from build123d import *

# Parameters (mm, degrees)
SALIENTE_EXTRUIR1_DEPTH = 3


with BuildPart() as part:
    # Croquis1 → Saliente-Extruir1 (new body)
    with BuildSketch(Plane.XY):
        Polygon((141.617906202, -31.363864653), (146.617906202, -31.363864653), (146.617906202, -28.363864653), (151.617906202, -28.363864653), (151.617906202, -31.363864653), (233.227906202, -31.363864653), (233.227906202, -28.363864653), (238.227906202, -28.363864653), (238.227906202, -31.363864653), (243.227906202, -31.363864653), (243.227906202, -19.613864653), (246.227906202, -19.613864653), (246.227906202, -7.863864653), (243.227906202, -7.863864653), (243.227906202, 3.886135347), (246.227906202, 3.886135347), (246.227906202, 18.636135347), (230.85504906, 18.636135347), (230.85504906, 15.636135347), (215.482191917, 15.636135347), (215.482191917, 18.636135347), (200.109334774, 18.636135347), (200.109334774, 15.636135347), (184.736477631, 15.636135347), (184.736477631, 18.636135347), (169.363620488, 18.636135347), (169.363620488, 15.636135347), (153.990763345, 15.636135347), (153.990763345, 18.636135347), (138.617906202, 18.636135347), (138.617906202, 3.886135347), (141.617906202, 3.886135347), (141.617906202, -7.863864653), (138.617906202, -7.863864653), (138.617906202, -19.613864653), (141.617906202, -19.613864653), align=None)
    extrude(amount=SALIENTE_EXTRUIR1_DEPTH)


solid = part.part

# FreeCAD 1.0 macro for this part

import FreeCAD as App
import Part
import Sketcher
from FreeCAD import Vector


def add_polygon(sketch, points):
    """Adds a closed chain of lines whose ends are joined by coincident constraints."""
    first, n = sketch.GeometryCount, len(points)
    for a, b in zip(points, points[1:] + points[:1]):
        sketch.addGeometry(Part.LineSegment(App.Vector(*a, 0), App.Vector(*b, 0)), False)
    for i in range(n):
        sketch.addConstraint(Sketcher.Constraint("Coincident", first + i, 2, first + (i + 1) % n, 1))

doc = App.newDocument("Part")
body = doc.addObject("PartDesign::Body", "Body")

# Sketch on XY plane
sketch1 = body.newObject("Sketcher::SketchObject", "Sketch")
sketch1.AttachmentSupport = (doc.getObject("XY_Plane"), [""])
sketch1.MapMode = "FlatFace"
add_polygon(sketch1, [(141.6, -31.4), (146.6, -31.4), (146.6, -28.4), (151.6, -28.4), (151.6, -31.4), (233.2, -31.4), (233.2, -28.4), (238.2, -28.4), (238.2, -31.4), (243.2, -31.4), (243.2, -19.6), (246.2, -19.6), (246.2, -7.9), (243.2, -7.9), (243.2, 3.9), (246.2, 3.9), (246.2, 18.6), (230.9, 18.6), (230.9, 15.6), (215.5, 15.6), (215.5, 18.6), (200.1, 18.6), (200.1, 15.6), (184.7, 15.6), (184.7, 18.6), (169.4, 18.6), (169.4, 15.6), (154, 15.6), (154, 18.6), (138.6, 18.6), (138.6, 3.9), (141.6, 3.9), (141.6, -7.9), (138.6, -7.9), (138.6, -19.6), (141.6, -19.6)])  # lines 0-35
sketch1.addConstraint(Sketcher.Constraint("Horizontal", 0))
sketch1.addConstraint(Sketcher.Constraint("Vertical", 1))
sketch1.addConstraint(Sketcher.Constraint("Horizontal", 2))
sketch1.addConstraint(Sketcher.Constraint("Vertical", 3))
sketch1.addConstraint(Sketcher.Constraint("Horizontal", 4))
sketch1.addConstraint(Sketcher.Constraint("Vertical", 5))
sketch1.addConstraint(Sketcher.Constraint("Horizontal", 6))
sketch1.addConstraint(Sketcher.Constraint("Vertical", 7))
sketch1.addConstraint(Sketcher.Constraint("Horizontal", 8))
sketch1.addConstraint(Sketcher.Constraint("Vertical", 9))
sketch1.addConstraint(Sketcher.Constraint("Horizontal", 10))
sketch1.addConstraint(Sketcher.Constraint("Vertical", 11))
sketch1.addConstraint(Sketcher.Constraint("Horizontal", 12))
sketch1.addConstraint(Sketcher.Constraint("Vertical", 13))
sketch1.addConstraint(Sketcher.Constraint("Horizontal", 14))
sketch1.addConstraint(Sketcher.Constraint("Vertical", 15))
sketch1.addConstraint(Sketcher.Constraint("Horizontal", 16))
sketch1.addConstraint(Sketcher.Constraint("Vertical", 17))
sketch1.addConstraint(Sketcher.Constraint("Horizontal", 18))
sketch1.addConstraint(Sketcher.Constraint("Vertical", 19))
sketch1.addConstraint(Sketcher.Constraint("Horizontal", 20))
sketch1.addConstraint(Sketcher.Constraint("Vertical", 21))
sketch1.addConstraint(Sketcher.Constraint("Horizontal", 22))
sketch1.addConstraint(Sketcher.Constraint("Vertical", 23))
sketch1.addConstraint(Sketcher.Constraint("Horizontal", 24))
sketch1.addConstraint(Sketcher.Constraint("Vertical", 25))
sketch1.addConstraint(Sketcher.Constraint("Horizontal", 26))
sketch1.addConstraint(Sketcher.Constraint("Vertical", 27))
sketch1.addConstraint(Sketcher.Constraint("Horizontal", 28))
sketch1.addConstraint(Sketcher.Constraint("Vertical", 29))
sketch1.addConstraint(Sketcher.Constraint("Horizontal", 30))
sketch1.addConstraint(Sketcher.Constraint("Vertical", 31))
sketch1.addConstraint(Sketcher.Constraint("Horizontal", 32))
sketch1.addConstraint(Sketcher.Constraint("Vertical", 33))
sketch1.addConstraint(Sketcher.Constraint("Horizontal", 34))
sketch1.addConstraint(Sketcher.Constraint("Vertical", 35))
sketch1.addConstraint(Sketcher.Constraint("Horizontal", 0, 2, 3, 2))
sketch1.addConstraint(Sketcher.Constraint("Horizontal", 2, 2, 5, 2))
sketch1.addConstraint(Sketcher.Constraint("Horizontal", 4, 2, 7, 2))
sketch1.addConstraint(Sketcher.Constraint("Horizontal", 16, 2, 19, 2))
sketch1.addConstraint(Sketcher.Constraint("Horizontal", 18, 2, 21, 2))
sketch1.addConstraint(Sketcher.Constraint("Horizontal", 20, 2, 23, 2))
sketch1.addConstraint(Sketcher.Constraint("Horizontal", 22, 2, 25, 2))
sketch1.addConstraint(Sketcher.Constraint("Horizontal", 24, 2, 27, 2))
sketch1.addConstraint(Sketcher.Constraint("Horizontal", 14, 2, 29, 2))
sketch1.addConstraint(Sketcher.Constraint("Horizontal", 12, 2, 31, 2))
sketch1.addConstraint(Sketcher.Constraint("Horizontal", 10, 2, 33, 2))
sketch1.addConstraint(Sketcher.Constraint("Vertical", 9, 2, 12, 2))
sketch1.addConstraint(Sketcher.Constraint("Vertical", 11, 2, 14, 2))
sketch1.addConstraint(Sketcher.Constraint("Vertical", 29, 2, 32, 2))
sketch1.addConstraint(Sketcher.Constraint("Vertical", 31, 2, 34, 2))
sketch1.addConstraint(Sketcher.Constraint("Equal", 0, 2))
sketch1.addConstraint(Sketcher.Constraint("Equal", 2, 6))
sketch1.addConstraint(Sketcher.Constraint("Equal", 6, 8))
sketch1.addConstraint(Sketcher.Constraint("Equal", 16, 18))
sketch1.addConstraint(Sketcher.Constraint("Equal", 18, 20))
sketch1.addConstraint(Sketcher.Constraint("Equal", 20, 22))
sketch1.addConstraint(Sketcher.Constraint("Equal", 22, 24))
sketch1.addConstraint(Sketcher.Constraint("Equal", 24, 26))
sketch1.addConstraint(Sketcher.Constraint("Equal", 26, 28))
sketch1.addConstraint(Sketcher.Constraint("Equal", 14, 30))
sketch1.addConstraint(Sketcher.Constraint("Equal", 34, 1))
sketch1.addConstraint(Sketcher.Constraint("Equal", 9, 11))
sketch1.addConstraint(Sketcher.Constraint("Equal", 11, 13))
sketch1.addConstraint(Sketcher.Constraint("Equal", 7, 17))
sketch1.addConstraint(Sketcher.Constraint("DistanceX", 0, 1, 0, 2, 5.0))
sketch1.addConstraint(Sketcher.Constraint("DistanceX", 10, 1, 10, 2, 3.0))
sketch1.addConstraint(Sketcher.Constraint("DistanceY", 2, 2, 26, 2, 44.0))
sketch1.addConstraint(Sketcher.Constraint("DistanceX", 4, 1, 4, 2, 81.61))
sketch1.addConstraint(Sketcher.Constraint("DistanceY", 9, 1, 9, 2, 11.75))
sketch1.addConstraint(Sketcher.Constraint("DistanceX", -1, 1, 16, 2, 230.855049))
sketch1.addConstraint(Sketcher.Constraint("DistanceY", 0, 2, -1, 1, 31.363865))
pad1 = body.newObject("PartDesign::Pad", "Pad")
pad1.Profile = sketch1
pad1.Length = 3

doc.recompute()
